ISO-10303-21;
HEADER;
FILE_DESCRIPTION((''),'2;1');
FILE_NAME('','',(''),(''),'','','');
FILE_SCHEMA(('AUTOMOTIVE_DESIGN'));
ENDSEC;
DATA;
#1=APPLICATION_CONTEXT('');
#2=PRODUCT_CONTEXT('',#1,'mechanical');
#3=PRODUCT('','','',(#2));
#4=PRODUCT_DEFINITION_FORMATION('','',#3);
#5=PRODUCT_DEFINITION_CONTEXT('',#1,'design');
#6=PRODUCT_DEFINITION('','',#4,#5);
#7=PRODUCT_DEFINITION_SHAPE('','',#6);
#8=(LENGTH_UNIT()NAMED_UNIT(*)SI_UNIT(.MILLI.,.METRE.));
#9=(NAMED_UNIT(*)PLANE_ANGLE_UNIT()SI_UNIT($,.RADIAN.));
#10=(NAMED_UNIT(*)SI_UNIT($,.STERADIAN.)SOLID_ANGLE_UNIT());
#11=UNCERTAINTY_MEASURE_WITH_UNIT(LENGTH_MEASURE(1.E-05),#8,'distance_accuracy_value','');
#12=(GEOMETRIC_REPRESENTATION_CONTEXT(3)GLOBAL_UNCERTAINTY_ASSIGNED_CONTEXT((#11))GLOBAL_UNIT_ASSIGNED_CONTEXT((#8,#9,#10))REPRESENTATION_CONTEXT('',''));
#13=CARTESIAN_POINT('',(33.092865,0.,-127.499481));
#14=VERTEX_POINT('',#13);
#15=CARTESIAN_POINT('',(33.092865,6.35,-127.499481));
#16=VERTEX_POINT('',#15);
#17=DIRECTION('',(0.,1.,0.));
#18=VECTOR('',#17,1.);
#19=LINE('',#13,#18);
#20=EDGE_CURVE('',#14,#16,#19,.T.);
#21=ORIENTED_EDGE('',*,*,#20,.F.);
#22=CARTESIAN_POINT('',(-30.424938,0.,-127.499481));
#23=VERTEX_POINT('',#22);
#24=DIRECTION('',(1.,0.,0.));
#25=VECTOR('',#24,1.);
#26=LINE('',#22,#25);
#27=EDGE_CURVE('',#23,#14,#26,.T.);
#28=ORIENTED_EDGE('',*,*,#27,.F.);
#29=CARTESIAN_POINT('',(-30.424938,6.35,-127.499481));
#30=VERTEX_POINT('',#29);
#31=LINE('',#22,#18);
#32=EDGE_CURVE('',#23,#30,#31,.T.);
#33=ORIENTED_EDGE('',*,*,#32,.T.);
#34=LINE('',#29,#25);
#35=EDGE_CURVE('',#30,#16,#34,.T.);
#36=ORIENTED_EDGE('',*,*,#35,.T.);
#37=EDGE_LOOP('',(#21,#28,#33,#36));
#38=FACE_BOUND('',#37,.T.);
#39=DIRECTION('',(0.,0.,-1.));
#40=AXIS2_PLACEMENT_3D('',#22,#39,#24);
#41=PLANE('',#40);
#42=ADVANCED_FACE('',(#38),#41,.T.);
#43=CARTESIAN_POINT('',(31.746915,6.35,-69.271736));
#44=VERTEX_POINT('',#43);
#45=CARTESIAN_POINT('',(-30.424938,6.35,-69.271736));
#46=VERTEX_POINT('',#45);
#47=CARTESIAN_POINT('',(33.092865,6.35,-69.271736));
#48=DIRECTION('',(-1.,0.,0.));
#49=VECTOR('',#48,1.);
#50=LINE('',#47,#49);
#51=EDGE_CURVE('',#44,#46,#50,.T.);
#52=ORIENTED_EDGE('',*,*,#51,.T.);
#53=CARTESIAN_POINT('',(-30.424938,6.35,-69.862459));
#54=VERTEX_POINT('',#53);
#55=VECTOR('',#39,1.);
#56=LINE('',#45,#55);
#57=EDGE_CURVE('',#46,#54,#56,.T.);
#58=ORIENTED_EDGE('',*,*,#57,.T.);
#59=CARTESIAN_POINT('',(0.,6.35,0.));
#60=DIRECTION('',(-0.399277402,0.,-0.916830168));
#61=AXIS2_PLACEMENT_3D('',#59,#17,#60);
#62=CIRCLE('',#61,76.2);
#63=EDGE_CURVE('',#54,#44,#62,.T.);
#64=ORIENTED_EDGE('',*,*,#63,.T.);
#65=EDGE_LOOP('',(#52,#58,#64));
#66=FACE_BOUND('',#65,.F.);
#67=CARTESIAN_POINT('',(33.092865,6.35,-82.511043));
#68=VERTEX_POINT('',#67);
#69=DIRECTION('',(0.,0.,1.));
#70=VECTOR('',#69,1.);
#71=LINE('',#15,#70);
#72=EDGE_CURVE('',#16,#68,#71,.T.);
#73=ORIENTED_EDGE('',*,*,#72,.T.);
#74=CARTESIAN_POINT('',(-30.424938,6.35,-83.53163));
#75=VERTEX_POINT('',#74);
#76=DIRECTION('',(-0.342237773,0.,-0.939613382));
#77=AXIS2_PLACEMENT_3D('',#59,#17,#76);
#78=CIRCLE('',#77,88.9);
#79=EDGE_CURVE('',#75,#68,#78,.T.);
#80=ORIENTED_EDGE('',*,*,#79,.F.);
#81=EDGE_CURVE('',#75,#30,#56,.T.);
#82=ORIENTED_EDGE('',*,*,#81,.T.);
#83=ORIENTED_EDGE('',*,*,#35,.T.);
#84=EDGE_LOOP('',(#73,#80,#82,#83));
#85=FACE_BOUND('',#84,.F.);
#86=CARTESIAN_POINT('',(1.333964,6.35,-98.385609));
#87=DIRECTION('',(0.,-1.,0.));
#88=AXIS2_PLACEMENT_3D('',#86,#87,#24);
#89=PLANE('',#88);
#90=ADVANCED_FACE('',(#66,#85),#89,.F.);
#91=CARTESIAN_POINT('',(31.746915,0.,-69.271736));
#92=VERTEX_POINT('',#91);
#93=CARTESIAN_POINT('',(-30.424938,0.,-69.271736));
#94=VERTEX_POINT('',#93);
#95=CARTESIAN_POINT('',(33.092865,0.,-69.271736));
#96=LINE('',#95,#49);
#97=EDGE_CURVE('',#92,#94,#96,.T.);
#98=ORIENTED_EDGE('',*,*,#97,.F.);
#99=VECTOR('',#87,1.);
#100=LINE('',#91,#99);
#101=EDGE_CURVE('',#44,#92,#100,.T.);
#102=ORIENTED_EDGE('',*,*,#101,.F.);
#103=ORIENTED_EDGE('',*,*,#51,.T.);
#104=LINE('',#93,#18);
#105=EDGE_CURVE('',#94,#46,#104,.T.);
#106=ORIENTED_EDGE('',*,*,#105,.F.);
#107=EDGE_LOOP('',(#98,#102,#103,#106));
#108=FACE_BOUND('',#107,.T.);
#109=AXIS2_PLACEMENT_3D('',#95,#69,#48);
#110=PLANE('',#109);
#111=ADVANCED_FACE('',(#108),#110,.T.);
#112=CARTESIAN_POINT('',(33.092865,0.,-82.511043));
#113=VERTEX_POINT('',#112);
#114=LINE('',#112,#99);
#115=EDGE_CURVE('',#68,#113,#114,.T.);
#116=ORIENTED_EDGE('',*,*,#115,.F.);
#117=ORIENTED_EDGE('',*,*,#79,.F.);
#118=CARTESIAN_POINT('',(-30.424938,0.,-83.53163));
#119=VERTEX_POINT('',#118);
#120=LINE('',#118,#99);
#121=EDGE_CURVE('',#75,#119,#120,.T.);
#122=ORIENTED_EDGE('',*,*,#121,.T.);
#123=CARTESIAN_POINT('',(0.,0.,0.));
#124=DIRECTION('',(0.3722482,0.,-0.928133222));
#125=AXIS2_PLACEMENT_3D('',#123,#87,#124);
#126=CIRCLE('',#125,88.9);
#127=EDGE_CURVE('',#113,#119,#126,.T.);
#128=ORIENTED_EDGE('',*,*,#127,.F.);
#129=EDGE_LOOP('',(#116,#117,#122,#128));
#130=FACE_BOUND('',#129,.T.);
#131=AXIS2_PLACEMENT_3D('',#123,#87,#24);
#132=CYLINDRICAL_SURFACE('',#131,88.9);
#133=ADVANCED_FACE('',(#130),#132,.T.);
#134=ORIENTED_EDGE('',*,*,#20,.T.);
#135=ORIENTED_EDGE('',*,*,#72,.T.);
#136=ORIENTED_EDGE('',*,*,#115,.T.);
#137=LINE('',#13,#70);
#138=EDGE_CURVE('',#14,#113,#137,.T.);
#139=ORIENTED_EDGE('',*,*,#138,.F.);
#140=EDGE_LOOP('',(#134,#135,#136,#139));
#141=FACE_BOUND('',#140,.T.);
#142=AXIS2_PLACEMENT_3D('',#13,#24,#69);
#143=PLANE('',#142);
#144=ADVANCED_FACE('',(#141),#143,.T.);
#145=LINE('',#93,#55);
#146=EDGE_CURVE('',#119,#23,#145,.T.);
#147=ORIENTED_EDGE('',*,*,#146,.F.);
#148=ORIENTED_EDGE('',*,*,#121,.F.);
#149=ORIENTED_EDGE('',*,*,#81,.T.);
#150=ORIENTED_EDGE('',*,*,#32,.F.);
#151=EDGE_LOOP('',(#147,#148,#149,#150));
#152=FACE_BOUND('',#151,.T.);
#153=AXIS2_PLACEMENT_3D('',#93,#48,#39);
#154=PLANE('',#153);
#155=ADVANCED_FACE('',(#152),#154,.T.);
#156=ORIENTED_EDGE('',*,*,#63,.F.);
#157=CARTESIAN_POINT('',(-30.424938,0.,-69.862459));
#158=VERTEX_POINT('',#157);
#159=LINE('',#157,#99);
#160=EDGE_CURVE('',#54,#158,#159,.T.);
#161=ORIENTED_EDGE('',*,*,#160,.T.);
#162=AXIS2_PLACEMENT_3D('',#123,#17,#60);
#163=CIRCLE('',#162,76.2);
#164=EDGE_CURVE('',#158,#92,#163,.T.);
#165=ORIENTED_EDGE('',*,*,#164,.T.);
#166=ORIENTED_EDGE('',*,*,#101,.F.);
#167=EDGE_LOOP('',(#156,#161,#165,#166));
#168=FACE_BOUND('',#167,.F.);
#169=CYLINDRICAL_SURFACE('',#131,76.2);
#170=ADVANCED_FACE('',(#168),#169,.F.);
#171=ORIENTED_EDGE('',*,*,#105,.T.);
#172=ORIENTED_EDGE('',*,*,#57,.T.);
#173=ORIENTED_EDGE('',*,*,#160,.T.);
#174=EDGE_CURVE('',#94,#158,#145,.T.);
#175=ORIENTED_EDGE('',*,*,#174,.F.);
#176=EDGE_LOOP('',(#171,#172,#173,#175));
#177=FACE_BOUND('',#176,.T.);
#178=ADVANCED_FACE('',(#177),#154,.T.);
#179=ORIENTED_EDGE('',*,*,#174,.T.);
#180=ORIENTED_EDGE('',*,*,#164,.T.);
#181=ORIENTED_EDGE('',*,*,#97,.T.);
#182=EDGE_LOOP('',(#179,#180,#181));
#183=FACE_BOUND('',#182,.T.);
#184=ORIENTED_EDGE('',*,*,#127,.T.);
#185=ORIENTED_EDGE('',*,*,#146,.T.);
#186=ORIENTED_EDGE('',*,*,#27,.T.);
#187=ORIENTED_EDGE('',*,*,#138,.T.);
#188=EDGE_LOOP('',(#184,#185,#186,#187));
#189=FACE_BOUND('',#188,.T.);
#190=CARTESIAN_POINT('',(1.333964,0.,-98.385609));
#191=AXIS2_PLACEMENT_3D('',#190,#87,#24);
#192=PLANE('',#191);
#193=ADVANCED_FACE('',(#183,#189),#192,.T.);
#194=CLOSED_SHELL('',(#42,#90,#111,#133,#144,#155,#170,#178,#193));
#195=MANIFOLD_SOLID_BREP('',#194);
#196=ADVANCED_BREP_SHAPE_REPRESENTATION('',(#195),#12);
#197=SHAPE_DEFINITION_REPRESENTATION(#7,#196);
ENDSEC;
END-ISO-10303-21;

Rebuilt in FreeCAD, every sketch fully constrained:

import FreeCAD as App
import Part
import Sketcher

V = App.Vector
Q = App.Units.Quantity

doc = App.newDocument("Part")
body = doc.addObject("PartDesign::Body", "Body")

sketch1 = body.newObject("Sketcher::SketchObject", "Sketch")
sketch1.AttachmentSupport = (doc.getObject("XZ_Plane"), [""])
sketch1.MapMode = "FlatFace"
sketch1.addGeometry([
    Part.Circle(V(0, 0, 0), V(0, 0, 1), 89),
    Part.Circle(V(0, 0, 0), V(0, 0, 1), 76),
], False)
sketch1.addConstraint([
    Sketcher.Constraint("Coincident", 0, 3, -1, 1),
    Sketcher.Constraint("Coincident", 1, 3, -1, 1),
    Sketcher.Constraint("Diameter", 0, Q("7 in")),
    Sketcher.Constraint("Diameter", 1, Q("6 in")),
])
pad1 = body.newObject("PartDesign::Pad", "Pad")
pad1.Profile = sketch1
pad1.Length = Q("0.25 in")
pad1.Reversed = True

sketch2 = body.newObject("Sketcher::SketchObject", "Sketch001")
sketch2.AttachmentSupport = (doc.getObject("XZ_Plane"), [""])
sketch2.MapMode = "FlatFace"
sketch2.addGeometry([
    Part.LineSegment(V(-30, -69, 0), V(-30, -127, 0)),
    Part.LineSegment(V(-30, -127, 0), V(33, -127, 0)),
    Part.LineSegment(V(33, -127, 0), V(33, -69, 0)),
    Part.LineSegment(V(33, -69, 0), V(-30, -69, 0)),
], False)
sketch2.addConstraint([
    Sketcher.Constraint("Coincident", 0, 2, 1, 1),
    Sketcher.Constraint("Coincident", 1, 2, 2, 1),
    Sketcher.Constraint("Coincident", 2, 2, 3, 1),
    Sketcher.Constraint("Coincident", 3, 2, 0, 1),
    Sketcher.Constraint("Vertical", 0),
    Sketcher.Constraint("Horizontal", 1),
    Sketcher.Constraint("Vertical", 2),
    Sketcher.Constraint("Horizontal", 3),
    Sketcher.Constraint("DistanceX", 1, 1, 1, 2, Q("63.517803 mm")),
    Sketcher.Constraint("DistanceY", 0, 2, 0, 1, Q("58.227745 mm")),
    Sketcher.Constraint("DistanceX", 0, 2, -1, 1, Q("30.424938 mm")),
    Sketcher.Constraint("DistanceY", 0, 2, -1, 1, Q("127.499481 mm")),
])
pad2 = body.newObject("PartDesign::Pad", "Pad001")
pad2.Profile = sketch2
pad2.Length = Q("0.25 in")
pad2.Reversed = True

doc.recompute()
